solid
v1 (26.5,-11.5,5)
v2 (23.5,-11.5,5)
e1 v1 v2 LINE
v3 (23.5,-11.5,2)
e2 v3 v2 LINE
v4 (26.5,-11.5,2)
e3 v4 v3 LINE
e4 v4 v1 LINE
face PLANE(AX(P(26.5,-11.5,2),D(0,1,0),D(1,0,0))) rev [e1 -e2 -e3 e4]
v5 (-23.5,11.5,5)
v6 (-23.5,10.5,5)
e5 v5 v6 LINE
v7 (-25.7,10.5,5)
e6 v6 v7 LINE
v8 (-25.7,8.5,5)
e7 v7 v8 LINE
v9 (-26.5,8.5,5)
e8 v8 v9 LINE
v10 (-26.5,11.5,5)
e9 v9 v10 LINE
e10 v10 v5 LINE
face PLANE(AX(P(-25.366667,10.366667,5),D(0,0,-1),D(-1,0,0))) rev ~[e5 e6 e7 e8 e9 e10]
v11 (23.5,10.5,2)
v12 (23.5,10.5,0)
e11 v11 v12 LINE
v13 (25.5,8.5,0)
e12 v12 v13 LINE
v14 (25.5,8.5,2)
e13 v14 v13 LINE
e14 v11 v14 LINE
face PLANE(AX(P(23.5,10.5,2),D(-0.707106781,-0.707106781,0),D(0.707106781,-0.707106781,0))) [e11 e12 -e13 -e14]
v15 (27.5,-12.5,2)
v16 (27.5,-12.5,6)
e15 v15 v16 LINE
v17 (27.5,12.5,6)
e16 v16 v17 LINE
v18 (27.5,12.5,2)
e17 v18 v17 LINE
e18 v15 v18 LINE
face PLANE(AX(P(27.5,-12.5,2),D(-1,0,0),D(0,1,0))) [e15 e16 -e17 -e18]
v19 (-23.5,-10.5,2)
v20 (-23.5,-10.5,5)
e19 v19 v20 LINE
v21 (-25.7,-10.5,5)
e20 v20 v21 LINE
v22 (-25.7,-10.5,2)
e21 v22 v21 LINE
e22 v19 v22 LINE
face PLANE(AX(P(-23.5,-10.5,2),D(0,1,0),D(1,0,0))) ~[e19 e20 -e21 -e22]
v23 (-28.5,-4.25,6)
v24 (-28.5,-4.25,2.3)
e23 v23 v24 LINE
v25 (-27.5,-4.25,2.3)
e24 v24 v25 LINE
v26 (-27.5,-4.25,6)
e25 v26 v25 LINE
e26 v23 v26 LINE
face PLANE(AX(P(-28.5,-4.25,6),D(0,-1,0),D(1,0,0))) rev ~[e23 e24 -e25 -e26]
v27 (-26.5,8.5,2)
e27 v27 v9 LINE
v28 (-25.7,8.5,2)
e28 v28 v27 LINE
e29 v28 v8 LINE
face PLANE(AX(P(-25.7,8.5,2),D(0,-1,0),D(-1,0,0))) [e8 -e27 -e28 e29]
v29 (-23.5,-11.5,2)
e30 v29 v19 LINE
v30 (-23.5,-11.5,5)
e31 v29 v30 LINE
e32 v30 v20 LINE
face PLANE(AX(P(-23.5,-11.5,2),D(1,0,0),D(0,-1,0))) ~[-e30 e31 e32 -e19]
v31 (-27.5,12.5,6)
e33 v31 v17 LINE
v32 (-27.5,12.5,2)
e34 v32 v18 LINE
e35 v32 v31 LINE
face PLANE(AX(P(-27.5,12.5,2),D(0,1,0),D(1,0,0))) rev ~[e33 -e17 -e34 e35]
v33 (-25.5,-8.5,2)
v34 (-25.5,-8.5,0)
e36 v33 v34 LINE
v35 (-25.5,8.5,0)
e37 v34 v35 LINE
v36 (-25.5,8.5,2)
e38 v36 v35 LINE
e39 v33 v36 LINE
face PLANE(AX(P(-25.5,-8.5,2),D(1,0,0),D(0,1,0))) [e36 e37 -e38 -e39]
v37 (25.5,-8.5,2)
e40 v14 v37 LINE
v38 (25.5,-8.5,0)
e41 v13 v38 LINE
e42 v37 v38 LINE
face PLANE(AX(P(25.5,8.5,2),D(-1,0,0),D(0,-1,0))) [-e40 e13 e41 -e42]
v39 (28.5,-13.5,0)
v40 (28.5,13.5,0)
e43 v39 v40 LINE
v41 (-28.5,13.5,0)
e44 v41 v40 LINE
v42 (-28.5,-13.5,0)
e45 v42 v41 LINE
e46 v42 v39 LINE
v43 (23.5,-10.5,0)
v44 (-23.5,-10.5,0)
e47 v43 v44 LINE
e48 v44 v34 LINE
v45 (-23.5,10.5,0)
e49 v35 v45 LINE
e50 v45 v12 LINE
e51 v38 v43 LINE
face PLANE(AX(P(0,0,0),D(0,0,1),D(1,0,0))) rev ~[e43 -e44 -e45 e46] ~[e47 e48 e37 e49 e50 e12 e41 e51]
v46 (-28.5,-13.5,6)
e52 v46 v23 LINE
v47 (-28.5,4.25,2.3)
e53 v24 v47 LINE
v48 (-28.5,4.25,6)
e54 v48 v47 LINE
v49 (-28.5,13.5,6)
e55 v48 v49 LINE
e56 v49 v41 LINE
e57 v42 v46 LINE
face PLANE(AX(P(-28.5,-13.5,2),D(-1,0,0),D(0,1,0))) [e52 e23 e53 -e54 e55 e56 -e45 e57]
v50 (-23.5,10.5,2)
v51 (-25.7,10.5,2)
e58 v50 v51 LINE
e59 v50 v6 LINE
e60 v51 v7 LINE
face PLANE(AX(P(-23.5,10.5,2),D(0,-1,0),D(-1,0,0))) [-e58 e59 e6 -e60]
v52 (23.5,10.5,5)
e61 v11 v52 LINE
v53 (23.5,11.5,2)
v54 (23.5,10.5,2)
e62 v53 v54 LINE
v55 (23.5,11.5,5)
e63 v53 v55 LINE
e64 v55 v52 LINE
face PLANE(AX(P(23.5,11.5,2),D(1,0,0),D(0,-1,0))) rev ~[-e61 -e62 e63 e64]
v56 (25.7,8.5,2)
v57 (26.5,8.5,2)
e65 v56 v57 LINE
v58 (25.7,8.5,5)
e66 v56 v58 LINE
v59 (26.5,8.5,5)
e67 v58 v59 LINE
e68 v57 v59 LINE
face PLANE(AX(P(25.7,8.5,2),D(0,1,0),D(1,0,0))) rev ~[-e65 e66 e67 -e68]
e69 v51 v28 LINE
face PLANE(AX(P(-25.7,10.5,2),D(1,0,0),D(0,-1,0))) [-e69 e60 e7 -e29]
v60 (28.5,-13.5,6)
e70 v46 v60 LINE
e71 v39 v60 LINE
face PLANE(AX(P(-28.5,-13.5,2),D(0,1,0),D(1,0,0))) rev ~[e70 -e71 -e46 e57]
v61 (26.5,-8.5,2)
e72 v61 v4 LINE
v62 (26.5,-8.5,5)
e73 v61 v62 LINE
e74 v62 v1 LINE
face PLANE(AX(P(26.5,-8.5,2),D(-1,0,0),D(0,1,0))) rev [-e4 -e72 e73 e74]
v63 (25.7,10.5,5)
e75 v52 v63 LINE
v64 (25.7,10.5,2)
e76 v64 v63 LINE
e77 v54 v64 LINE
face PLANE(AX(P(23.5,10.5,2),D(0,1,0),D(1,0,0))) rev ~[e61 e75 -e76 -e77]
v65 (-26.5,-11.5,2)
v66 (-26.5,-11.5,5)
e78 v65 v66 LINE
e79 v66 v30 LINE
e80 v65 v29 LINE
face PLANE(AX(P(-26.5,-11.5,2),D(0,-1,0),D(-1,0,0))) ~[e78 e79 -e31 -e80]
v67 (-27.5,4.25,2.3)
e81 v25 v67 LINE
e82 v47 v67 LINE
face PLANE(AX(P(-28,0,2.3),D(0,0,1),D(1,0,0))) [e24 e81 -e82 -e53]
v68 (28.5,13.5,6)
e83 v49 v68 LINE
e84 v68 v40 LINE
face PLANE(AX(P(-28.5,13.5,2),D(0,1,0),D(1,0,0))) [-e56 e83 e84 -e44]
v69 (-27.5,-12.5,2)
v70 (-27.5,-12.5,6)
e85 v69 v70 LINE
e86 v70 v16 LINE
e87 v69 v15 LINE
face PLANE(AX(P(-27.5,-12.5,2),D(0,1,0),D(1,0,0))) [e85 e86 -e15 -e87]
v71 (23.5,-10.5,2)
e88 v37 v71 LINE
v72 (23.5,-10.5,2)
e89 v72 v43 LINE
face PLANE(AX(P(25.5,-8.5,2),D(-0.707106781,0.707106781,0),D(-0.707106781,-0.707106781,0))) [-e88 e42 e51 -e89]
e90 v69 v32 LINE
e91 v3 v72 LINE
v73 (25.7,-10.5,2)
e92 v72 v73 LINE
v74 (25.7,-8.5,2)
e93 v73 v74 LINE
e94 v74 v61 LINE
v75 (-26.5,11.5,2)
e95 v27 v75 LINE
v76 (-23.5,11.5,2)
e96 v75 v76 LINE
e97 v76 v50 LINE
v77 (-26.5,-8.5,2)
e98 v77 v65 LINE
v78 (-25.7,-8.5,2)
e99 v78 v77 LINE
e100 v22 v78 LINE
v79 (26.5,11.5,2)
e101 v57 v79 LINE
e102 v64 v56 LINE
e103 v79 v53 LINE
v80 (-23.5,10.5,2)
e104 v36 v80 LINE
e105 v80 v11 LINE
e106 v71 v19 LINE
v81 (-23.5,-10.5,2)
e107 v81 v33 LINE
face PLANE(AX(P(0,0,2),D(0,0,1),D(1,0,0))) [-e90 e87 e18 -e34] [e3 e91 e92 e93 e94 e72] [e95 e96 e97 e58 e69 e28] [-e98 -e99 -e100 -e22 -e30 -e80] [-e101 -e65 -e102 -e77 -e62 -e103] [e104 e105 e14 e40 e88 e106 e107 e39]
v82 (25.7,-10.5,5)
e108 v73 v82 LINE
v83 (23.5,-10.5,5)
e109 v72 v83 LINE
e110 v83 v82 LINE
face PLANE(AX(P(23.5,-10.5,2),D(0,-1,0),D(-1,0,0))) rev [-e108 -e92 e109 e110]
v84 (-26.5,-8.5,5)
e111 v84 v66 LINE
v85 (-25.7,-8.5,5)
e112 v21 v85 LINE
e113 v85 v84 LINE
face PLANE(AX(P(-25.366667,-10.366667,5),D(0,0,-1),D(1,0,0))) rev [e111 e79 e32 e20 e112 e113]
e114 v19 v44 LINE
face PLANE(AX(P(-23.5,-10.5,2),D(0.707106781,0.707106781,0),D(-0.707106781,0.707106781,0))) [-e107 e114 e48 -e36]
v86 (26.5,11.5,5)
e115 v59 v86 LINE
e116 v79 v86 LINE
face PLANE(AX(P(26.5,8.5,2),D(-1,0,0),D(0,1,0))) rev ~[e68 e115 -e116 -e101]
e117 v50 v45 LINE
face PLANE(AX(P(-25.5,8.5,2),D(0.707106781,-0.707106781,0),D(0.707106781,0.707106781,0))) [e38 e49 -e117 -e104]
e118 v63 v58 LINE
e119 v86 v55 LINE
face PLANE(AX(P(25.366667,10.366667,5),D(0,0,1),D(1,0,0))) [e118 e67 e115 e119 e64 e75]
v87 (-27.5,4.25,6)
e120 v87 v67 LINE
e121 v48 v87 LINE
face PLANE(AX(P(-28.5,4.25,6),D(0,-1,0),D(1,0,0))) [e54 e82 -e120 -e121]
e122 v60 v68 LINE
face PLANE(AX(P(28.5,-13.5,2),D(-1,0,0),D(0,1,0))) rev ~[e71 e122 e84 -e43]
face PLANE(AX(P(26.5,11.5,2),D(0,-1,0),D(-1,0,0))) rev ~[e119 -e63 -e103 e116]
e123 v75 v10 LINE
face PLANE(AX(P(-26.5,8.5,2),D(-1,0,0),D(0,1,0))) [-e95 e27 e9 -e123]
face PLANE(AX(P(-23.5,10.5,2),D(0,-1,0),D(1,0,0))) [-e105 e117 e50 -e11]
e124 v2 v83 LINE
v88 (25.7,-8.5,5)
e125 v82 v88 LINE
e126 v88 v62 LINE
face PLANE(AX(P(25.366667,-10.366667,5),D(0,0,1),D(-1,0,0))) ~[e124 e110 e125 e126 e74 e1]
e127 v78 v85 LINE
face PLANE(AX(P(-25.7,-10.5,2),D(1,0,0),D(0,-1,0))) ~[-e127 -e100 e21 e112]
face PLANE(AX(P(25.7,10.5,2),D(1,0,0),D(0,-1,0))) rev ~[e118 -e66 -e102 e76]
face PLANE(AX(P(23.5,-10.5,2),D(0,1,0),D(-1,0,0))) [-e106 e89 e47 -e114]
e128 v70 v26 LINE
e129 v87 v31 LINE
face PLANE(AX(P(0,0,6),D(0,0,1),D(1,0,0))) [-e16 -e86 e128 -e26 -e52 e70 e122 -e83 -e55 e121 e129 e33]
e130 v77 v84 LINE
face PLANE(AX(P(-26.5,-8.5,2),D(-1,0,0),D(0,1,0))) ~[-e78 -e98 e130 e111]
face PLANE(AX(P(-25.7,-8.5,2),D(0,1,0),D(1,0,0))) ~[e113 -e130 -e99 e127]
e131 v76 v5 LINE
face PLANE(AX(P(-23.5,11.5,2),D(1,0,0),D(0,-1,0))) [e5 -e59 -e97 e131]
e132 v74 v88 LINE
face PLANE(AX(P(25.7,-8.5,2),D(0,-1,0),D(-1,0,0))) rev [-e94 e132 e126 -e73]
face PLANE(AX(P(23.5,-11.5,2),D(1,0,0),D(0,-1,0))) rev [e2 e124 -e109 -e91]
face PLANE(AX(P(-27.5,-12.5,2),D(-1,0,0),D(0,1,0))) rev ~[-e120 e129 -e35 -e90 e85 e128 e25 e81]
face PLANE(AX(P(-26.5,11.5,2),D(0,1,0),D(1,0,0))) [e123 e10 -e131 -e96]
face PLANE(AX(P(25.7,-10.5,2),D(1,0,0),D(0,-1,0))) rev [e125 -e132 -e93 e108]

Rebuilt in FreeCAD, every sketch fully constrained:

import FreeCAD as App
import Part
import Sketcher
from FreeCAD import Vector


def add_polygon(sketch, points):
    """Adds a closed chain of lines whose ends are joined by coincident constraints."""
    first, n = sketch.GeometryCount, len(points)
    for a, b in zip(points, points[1:] + points[:1]):
        sketch.addGeometry(Part.LineSegment(App.Vector(*a, 0), App.Vector(*b, 0)), False)
    for i in range(n):
        sketch.addConstraint(Sketcher.Constraint("Coincident", first + i, 2, first + (i + 1) % n, 1))

doc = App.newDocument("Part")
body = doc.addObject("PartDesign::Body", "Body")

sketch1 = body.newObject("Sketcher::SketchObject", "Sketch")
sketch1.AttachmentSupport = (doc.getObject("XY_Plane"), [""])
sketch1.MapMode = "FlatFace"
add_polygon(sketch1, [(-28.5, 13.5), (-28.5, -13.5), (28.5, -13.5), (28.5, 13.5)])
sketch1.addConstraint([
    Sketcher.Constraint("Vertical", 0),
    Sketcher.Constraint("Horizontal", 1),
    Sketcher.Constraint("Vertical", 2),
    Sketcher.Constraint("Horizontal", 3),
    Sketcher.Constraint("Symmetric", 0, 2, 2, 2, -1, 1),
    Sketcher.Constraint("DistanceX", 1, 1, 1, 2, 57.0),
    Sketcher.Constraint("DistanceY", 0, 2, 0, 1, 27.0),
])
pad1 = body.newObject("PartDesign::Pad", "Pad")
pad1.Profile = sketch1
pad1.Length = 2

sketch2 = body.newObject("Sketcher::SketchObject", "Sketch001")
sketch2.AttachmentSupport = (doc.getObject("XY_Plane"), [""])
sketch2.MapMode = "FlatFace"
sketch2.AttachmentOffset = App.Placement(Vector(0, 0, 2), App.Rotation())
add_polygon(sketch2, [(-23.5, 11.5), (-26.5, 11.5), (-26.5, 8.5), (-25.7, 8.5), (-25.7, 10.5), (-23.5, 10.5)])
sketch2.addConstraint([
    Sketcher.Constraint("Horizontal", 0),
    Sketcher.Constraint("Vertical", 1),
    Sketcher.Constraint("Horizontal", 2),
    Sketcher.Constraint("Vertical", 3),
    Sketcher.Constraint("Horizontal", 4),
    Sketcher.Constraint("Vertical", 5),
    Sketcher.Constraint("Equal", 0, 1),
    Sketcher.Constraint("DistanceX", 0, 2, 0, 1, 3.0),
    Sketcher.Constraint("DistanceY", 3, 1, 3, 2, 2.0),
    Sketcher.Constraint("DistanceX", 2, 1, 2, 2, 0.8),
    Sketcher.Constraint("DistanceX", 0, 2, -1, 1, 26.5),
    Sketcher.Constraint("DistanceY", -1, 1, 0, 2, 11.5),
])
pad2 = body.newObject("PartDesign::Pad", "Pad001")
pad2.Profile = sketch2
pad2.Length = 3

sketch3 = body.newObject("Sketcher::SketchObject", "Sketch002")
sketch3.AttachmentSupport = (doc.getObject("XY_Plane"), [""])
sketch3.MapMode = "FlatFace"
sketch3.AttachmentOffset = App.Placement(Vector(0, 0, 2), App.Rotation())
add_polygon(sketch3, [(23.5, 11.5), (26.5, 11.5), (26.5, 8.5), (25.7, 8.5), (25.7, 10.5), (23.5, 10.5)])
sketch3.addConstraint([
    Sketcher.Constraint("Horizontal", 0),
    Sketcher.Constraint("Vertical", 1),
    Sketcher.Constraint("Horizontal", 2),
    Sketcher.Constraint("Vertical", 3),
    Sketcher.Constraint("Horizontal", 4),
    Sketcher.Constraint("Vertical", 5),
    Sketcher.Constraint("Equal", 0, 1),
    Sketcher.Constraint("DistanceX", 0, 1, 0, 2, 3.0),
    Sketcher.Constraint("DistanceY", 3, 1, 3, 2, 2.0),
    Sketcher.Constraint("DistanceX", 2, 2, 2, 1, 0.8),
    Sketcher.Constraint("DistanceX", -1, 1, 0, 2, 26.5),
    Sketcher.Constraint("DistanceY", -1, 1, 0, 2, 11.5),
])
pad3 = body.newObject("PartDesign::Pad", "Pad002")
pad3.Profile = sketch3
pad3.Length = 3
doc.recompute()

mirrored = body.newObject("PartDesign::Mirrored", "Mirrored")
mirrored.Originals = [pad2, pad3]
mirrored.MirrorPlane = (doc.getObject("XZ_Plane"), [""])
body.Tip = mirrored

sketch4 = body.newObject("Sketcher::SketchObject", "Sketch003")
sketch4.AttachmentSupport = (doc.getObject("XY_Plane"), [""])
sketch4.MapMode = "FlatFace"
sketch4.AttachmentOffset = App.Placement(Vector(0, 0, 2), App.Rotation())
add_polygon(sketch4, [(25.5, 8.5), (23.5, 10.5), (-23.5, 10.5), (-25.5, 8.5), (-25.5, -8.5), (-23.5, -10.5), (23.5, -10.5), (25.5, -8.5)])
sketch4.addConstraint([
    Sketcher.Constraint("Horizontal", 1),
    Sketcher.Constraint("Vertical", 3),
    Sketcher.Constraint("Horizontal", 5),
    Sketcher.Constraint("Vertical", 7),
    Sketcher.Constraint("Symmetric", 0, 2, 4, 2, -1, 1),
    Sketcher.Constraint("Symmetric", 2, 2, 6, 2, -1, 1),
    Sketcher.Constraint("Perpendicular", 0, 2),
    Sketcher.Constraint("Perpendicular", 2, 4),
    Sketcher.Constraint("Perpendicular", 4, 6),
    Sketcher.Constraint("Horizontal", 3, 2, 6, 2),
    Sketcher.Constraint("Vertical", 1, 2, 4, 2),
    Sketcher.Constraint("DistanceX", 1, 2, 1, 1, 47.0),
    Sketcher.Constraint("DistanceY", 3, 2, 3, 1, 17.0),
    Sketcher.Constraint("DistanceX", 2, 2, 1, 2, 2.0),
])
pocket1 = body.newObject("PartDesign::Pocket", "Pocket")
pocket1.Profile = sketch4
pocket1.Length = 2

sketch5 = body.newObject("Sketcher::SketchObject", "Sketch004")
sketch5.AttachmentSupport = (doc.getObject("XY_Plane"), [""])
sketch5.MapMode = "FlatFace"
sketch5.AttachmentOffset = App.Placement(Vector(0, 0, 2), App.Rotation())
add_polygon(sketch5, [(-28.5, 13.5), (-28.5, -13.5), (28.5, -13.5), (28.5, 13.5)])
add_polygon(sketch5, [(27.5, -12.5), (-27.5, -12.5), (-27.5, 12.5), (27.5, 12.5)])
sketch5.addConstraint([
    Sketcher.Constraint("Vertical", 0),
    Sketcher.Constraint("Horizontal", 1),
    Sketcher.Constraint("Vertical", 2),
    Sketcher.Constraint("Horizontal", 3),
    Sketcher.Constraint("Horizontal", 4),
    Sketcher.Constraint("Vertical", 5),
    Sketcher.Constraint("Horizontal", 6),
    Sketcher.Constraint("Vertical", 7),
    Sketcher.Constraint("Symmetric", 0, 2, 2, 2, -1, 1),
    Sketcher.Constraint("Symmetric", 4, 2, 6, 2, -1, 1),
    Sketcher.Constraint("DistanceX", 1, 1, 1, 2, 57.0),
    Sketcher.Constraint("DistanceX", 4, 2, 4, 1, 55.0),
    Sketcher.Constraint("DistanceY", 0, 2, 0, 1, 27.0),
    Sketcher.Constraint("DistanceY", 5, 1, 5, 2, 25.0),
])
pad4 = body.newObject("PartDesign::Pad", "Pad003")
pad4.Profile = sketch5
pad4.Length = 4

sketch6 = body.newObject("Sketcher::SketchObject", "Sketch005")
sketch6.AttachmentSupport = (doc.getObject("XY_Plane"), [""])
sketch6.MapMode = "FlatFace"
sketch6.AttachmentOffset = App.Placement(Vector(0, 0, 6), App.Rotation())
add_polygon(sketch6, [(-28.5, 4.25), (-28.5, -4.25), (-27.5, -4.25), (-27.5, 4.25)])
sketch6.addConstraint([
    Sketcher.Constraint("Vertical", 0),
    Sketcher.Constraint("Horizontal", 1),
    Sketcher.Constraint("Vertical", 2),
    Sketcher.Constraint("Horizontal", 3),
    Sketcher.Constraint("DistanceX", 1, 1, 1, 2, 1.0),
    Sketcher.Constraint("DistanceY", 0, 2, 0, 1, 8.5),
    Sketcher.Constraint("DistanceX", 0, 2, -1, 1, 28.5),
    Sketcher.Constraint("DistanceY", 0, 2, -1, 1, 4.25),
])
pocket2 = body.newObject("PartDesign::Pocket", "Pocket001")
pocket2.Profile = sketch6
pocket2.Length = 3.7

doc.recompute()
